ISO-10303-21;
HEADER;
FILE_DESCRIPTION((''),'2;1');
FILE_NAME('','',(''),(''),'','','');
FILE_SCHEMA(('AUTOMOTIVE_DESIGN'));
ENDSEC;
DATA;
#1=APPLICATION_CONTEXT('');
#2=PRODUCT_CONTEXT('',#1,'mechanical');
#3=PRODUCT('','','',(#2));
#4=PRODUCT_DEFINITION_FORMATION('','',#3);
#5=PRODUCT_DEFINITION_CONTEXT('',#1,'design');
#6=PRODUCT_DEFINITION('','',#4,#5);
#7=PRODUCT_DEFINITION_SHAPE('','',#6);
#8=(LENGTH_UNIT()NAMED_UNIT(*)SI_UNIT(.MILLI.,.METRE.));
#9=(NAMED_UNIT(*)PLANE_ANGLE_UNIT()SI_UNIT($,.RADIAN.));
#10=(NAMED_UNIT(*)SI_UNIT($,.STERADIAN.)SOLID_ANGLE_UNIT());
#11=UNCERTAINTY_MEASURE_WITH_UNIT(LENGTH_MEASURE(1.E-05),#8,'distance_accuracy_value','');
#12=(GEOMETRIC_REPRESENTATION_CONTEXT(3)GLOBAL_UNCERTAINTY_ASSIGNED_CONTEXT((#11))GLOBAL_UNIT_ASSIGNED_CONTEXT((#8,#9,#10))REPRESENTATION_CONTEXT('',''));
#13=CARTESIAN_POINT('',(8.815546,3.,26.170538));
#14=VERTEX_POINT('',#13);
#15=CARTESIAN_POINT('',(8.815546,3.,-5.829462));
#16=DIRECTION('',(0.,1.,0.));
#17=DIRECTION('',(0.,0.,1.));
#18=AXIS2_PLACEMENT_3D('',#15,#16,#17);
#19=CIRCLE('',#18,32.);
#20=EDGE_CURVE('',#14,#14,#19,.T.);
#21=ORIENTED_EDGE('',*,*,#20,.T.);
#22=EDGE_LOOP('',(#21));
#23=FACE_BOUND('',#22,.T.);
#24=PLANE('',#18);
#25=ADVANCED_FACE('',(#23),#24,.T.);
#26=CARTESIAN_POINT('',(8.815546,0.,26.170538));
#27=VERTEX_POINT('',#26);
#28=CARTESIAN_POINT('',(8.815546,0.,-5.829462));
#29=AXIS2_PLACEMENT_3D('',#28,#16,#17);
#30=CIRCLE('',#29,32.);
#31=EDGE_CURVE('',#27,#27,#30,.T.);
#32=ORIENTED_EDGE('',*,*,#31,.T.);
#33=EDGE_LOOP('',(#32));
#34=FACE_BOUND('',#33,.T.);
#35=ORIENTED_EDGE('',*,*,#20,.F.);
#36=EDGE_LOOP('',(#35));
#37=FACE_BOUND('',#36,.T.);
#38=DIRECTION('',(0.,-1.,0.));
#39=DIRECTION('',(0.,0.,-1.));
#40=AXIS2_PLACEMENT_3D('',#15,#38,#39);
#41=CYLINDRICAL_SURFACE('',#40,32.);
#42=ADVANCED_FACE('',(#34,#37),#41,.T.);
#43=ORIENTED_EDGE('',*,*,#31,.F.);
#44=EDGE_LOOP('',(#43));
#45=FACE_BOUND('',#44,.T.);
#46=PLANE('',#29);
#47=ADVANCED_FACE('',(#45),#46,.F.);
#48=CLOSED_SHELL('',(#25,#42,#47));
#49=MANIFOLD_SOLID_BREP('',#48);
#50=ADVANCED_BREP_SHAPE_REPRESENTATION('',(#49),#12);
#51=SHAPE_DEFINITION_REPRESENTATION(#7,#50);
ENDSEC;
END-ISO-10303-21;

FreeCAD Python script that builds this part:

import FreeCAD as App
import Part
import Sketcher
from FreeCAD import Vector

doc = App.newDocument("Part")
body = doc.addObject("PartDesign::Body", "Body")

# Sketch on XZ plane
sketch1 = body.newObject("Sketcher::SketchObject", "Sketch")
sketch1.AttachmentSupport = (doc.getObject("XZ_Plane"), [""])
sketch1.MapMode = "FlatFace"
sketch1.addGeometry(Part.Circle(Vector(8.815546, -5.829462, 0), Vector(0, 0, 1), 32), False)
sketch1.addConstraint([
    Sketcher.Constraint("Diameter", 0, 64.0),
    Sketcher.Constraint("DistanceY", 0, 3, -1, 1, 5.829462),
    Sketcher.Constraint("DistanceX", -1, 1, 0, 3, 8.815546),
])
pad1 = body.newObject("PartDesign::Pad", "Pad")
pad1.Profile = sketch1
pad1.Length = 3
pad1.Reversed = True

doc.recompute()
